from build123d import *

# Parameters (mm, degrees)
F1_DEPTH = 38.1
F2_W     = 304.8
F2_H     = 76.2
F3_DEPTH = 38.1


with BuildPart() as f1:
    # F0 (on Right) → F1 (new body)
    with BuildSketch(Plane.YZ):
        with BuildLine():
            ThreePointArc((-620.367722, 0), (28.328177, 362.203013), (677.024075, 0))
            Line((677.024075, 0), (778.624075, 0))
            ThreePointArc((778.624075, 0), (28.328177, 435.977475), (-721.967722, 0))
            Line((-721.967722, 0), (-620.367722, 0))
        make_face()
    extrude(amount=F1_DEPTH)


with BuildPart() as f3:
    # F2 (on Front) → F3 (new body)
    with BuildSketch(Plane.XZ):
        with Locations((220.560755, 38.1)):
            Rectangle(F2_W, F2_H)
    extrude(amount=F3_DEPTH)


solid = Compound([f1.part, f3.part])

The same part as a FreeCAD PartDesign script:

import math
import FreeCAD as App
import Part
import Sketcher

V = App.Vector
Q = App.Units.Quantity

doc = App.newDocument("Part")
body = doc.addObject("PartDesign::Body", "Body")

sketch1 = doc.addObject("Sketcher::SketchObject", "Sketch")
body.addObject(sketch1)
sketch1.AttachmentSupport = (doc.YZ_Plane, [""])
sketch1.MapMode = "FlatFace"
sketch1.addGeometry(Part.ArcOfCircle(Part.Circle(V(28.328177, -399.796986, 0), V(0, 0, 1), 761.999999), math.radians(31.645893), math.radians(148.354107)), False)
sketch1.addGeometry(Part.LineSegment(V(677.024075, 0, 0), V(778.624075, 0, 0)), False)
sketch1.addGeometry(Part.ArcOfCircle(Part.Circle(V(28.328177, -427.622524, 0), V(0, 0, 1), 863.599999), math.radians(29.680481), math.radians(150.319519)), False)
sketch1.addGeometry(Part.LineSegment(V(-721.967722, 0, 0), V(-620.367722, 0, 0)), False)
sketch1.addConstraint(Sketcher.Constraint("Coincident", 0, 1, 1, 1))
sketch1.addConstraint(Sketcher.Constraint("Coincident", 1, 2, 2, 1))
sketch1.addConstraint(Sketcher.Constraint("Coincident", 2, 2, 3, 1))
sketch1.addConstraint(Sketcher.Constraint("Coincident", 3, 2, 0, 2))
sketch1.addConstraint(Sketcher.Constraint("Horizontal", 1))
sketch1.addConstraint(Sketcher.Constraint("Horizontal", 3))
sketch1.addConstraint(Sketcher.Constraint("PointOnObject", 1, 2, -1))
sketch1.addConstraint(Sketcher.Constraint("PointOnObject", 3, 2, -1))
sketch1.addConstraint(Sketcher.Constraint("Vertical", 0, 3, 2, 3))
sketch1.addConstraint(Sketcher.Constraint("Radius", 0, Q("30 in")))
sketch1.addConstraint(Sketcher.Constraint("Radius", 2, Q("34 in")))
sketch1.addConstraint(Sketcher.Constraint("DistanceX", 1, 1, 1, 2, Q("4 in")))
sketch1.addConstraint(Sketcher.Constraint("DistanceX", 0, 3, 1, 2, Q("750.295898 mm")))
sketch1.addConstraint(Sketcher.Constraint("DistanceX", 3, 2, -1, 1, Q("620.367722 mm")))
pad1 = doc.addObject("PartDesign::Pad", "Pad")
body.addObject(pad1)
pad1.Profile = sketch1
pad1.Length = Q("1.5 in")
body2 = doc.addObject("PartDesign::Body", "Body001")

sketch2 = doc.addObject("Sketcher::SketchObject", "Sketch001")
body2.addObject(sketch2)
sketch2.AttachmentSupport = (doc.getObject("XZ_Plane001"), [""])
sketch2.MapMode = "FlatFace"
sketch2.addGeometry(Part.LineSegment(V(68.160755, 76.2, 0), V(68.160755, 0, 0)), False)
sketch2.addGeometry(Part.LineSegment(V(68.160755, 0, 0), V(372.960755, 0, 0)), False)
sketch2.addGeometry(Part.LineSegment(V(372.960755, 0, 0), V(372.960755, 76.2, 0)), False)
sketch2.addGeometry(Part.LineSegment(V(372.960755, 76.2, 0), V(68.160755, 76.2, 0)), False)
sketch2.addConstraint(Sketcher.Constraint("Coincident", 0, 2, 1, 1))
sketch2.addConstraint(Sketcher.Constraint("Coincident", 1, 2, 2, 1))
sketch2.addConstraint(Sketcher.Constraint("Coincident", 2, 2, 3, 1))
sketch2.addConstraint(Sketcher.Constraint("Coincident", 3, 2, 0, 1))
sketch2.addConstraint(Sketcher.Constraint("Vertical", 0))
sketch2.addConstraint(Sketcher.Constraint("Horizontal", 1))
sketch2.addConstraint(Sketcher.Constraint("Vertical", 2))
sketch2.addConstraint(Sketcher.Constraint("Horizontal", 3))
sketch2.addConstraint(Sketcher.Constraint("PointOnObject", 0, 2, -1))
sketch2.addConstraint(Sketcher.Constraint("DistanceX", 1, 1, 1, 2, Q("12 in")))
sketch2.addConstraint(Sketcher.Constraint("DistanceY", 0, 2, 0, 1, Q("3 in")))
sketch2.addConstraint(Sketcher.Constraint("DistanceX", -1, 1, 0, 2, Q("68.160755 mm")))
pad2 = doc.addObject("PartDesign::Pad", "Pad001")
body2.addObject(pad2)
pad2.Profile = sketch2
pad2.Length = Q("1.5 in")

doc.recompute()
